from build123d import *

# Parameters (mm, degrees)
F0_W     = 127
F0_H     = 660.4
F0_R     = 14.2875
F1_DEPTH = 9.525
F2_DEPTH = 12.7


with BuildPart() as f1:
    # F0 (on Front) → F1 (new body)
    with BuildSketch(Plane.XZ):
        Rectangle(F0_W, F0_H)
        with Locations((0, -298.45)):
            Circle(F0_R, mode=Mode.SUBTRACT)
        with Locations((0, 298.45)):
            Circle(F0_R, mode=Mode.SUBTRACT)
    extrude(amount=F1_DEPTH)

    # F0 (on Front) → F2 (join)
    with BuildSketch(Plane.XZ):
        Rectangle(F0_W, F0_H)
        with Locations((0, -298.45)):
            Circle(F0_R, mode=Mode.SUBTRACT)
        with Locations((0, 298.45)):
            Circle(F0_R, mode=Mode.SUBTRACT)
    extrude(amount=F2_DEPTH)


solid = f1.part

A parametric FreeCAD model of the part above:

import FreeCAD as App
import Part
import Sketcher
Q = App.Units.Quantity


def add_polygon(sketch, points):
    """Adds a closed chain of lines whose ends are joined by coincident constraints."""
    first, n = sketch.GeometryCount, len(points)
    for a, b in zip(points, points[1:] + points[:1]):
        sketch.addGeometry(Part.LineSegment(App.Vector(*a, 0), App.Vector(*b, 0)), False)
    for i in range(n):
        sketch.addConstraint(Sketcher.Constraint("Coincident", first + i, 2, first + (i + 1) % n, 1))

doc = App.newDocument("Part")
body = doc.addObject("PartDesign::Body", "Body")

# Sketch on XZ plane
sketch1 = body.newObject("Sketcher::SketchObject", "Sketch")
sketch1.AttachmentSupport = (doc.getObject("XZ_Plane"), [""])
sketch1.MapMode = "FlatFace"
add_polygon(sketch1, [(-63.5, 330.2), (-63.5, -330.2), (63.5, -330.2), (63.5, 330.2)])  # lines 0-3
sketch1.addGeometry(Part.Circle(App.Vector(0, -298.45, 0), App.Vector(0, 0, 1), 14.2875), False)  # 4
sketch1.addGeometry(Part.Circle(App.Vector(0, 298.45, 0), App.Vector(0, 0, 1), 14.2875), False)  # 5
sketch1.addConstraint([
    Sketcher.Constraint("Vertical", 0),
    Sketcher.Constraint("Horizontal", 1),
    Sketcher.Constraint("Vertical", 2),
    Sketcher.Constraint("Horizontal", 3),
    Sketcher.Constraint("Equal", 4, 5),
    Sketcher.Constraint("Symmetric", 4, 3, 5, 3, -1, 1),
    Sketcher.Constraint("Symmetric", 0, 2, 2, 2, -1, 1),
    Sketcher.Constraint("PointOnObject", 4, 3, -2),
    Sketcher.Constraint("DistanceX", 1, 1, 1, 2, Q("5 in")),
    Sketcher.Constraint("DistanceY", 0, 2, 0, 1, Q("26 in")),
    Sketcher.Constraint("Diameter", 4, Q("1.125 in")),
    Sketcher.Constraint("DistanceY", 4, 3, 5, 3, Q("23.5 in")),
])
pad1 = body.newObject("PartDesign::Pad", "Pad")
pad1.Profile = sketch1
pad1.Length = Q("0.375 in")

# Sketch on XZ plane
sketch2 = body.newObject("Sketcher::SketchObject", "Sketch001")
sketch2.AttachmentSupport = (doc.getObject("XZ_Plane"), [""])
sketch2.MapMode = "FlatFace"
add_polygon(sketch2, [(-63.5, 330.2), (-63.5, -330.2), (63.5, -330.2), (63.5, 330.2)])  # lines 0-3
sketch2.addGeometry(Part.Circle(App.Vector(0, -298.45, 0), App.Vector(0, 0, 1), 14.2875), False)  # 4
sketch2.addGeometry(Part.Circle(App.Vector(0, 298.45, 0), App.Vector(0, 0, 1), 14.2875), False)  # 5
sketch2.addConstraint([
    Sketcher.Constraint("Vertical", 0),
    Sketcher.Constraint("Horizontal", 1),
    Sketcher.Constraint("Vertical", 2),
    Sketcher.Constraint("Horizontal", 3),
    Sketcher.Constraint("Equal", 4, 5),
    Sketcher.Constraint("Symmetric", 4, 3, 5, 3, -1, 1),
    Sketcher.Constraint("Symmetric", 0, 2, 2, 2, -1, 1),
    Sketcher.Constraint("PointOnObject", 4, 3, -2),
    Sketcher.Constraint("DistanceX", 1, 1, 1, 2, Q("5 in")),
    Sketcher.Constraint("DistanceY", 0, 2, 0, 1, Q("26 in")),
    Sketcher.Constraint("Diameter", 4, Q("1.125 in")),
    Sketcher.Constraint("DistanceY", 4, 3, 5, 3, Q("23.5 in")),
])
pad2 = body.newObject("PartDesign::Pad", "Pad001")
pad2.Profile = sketch2
pad2.Length = Q("0.5 in")

doc.recompute()
